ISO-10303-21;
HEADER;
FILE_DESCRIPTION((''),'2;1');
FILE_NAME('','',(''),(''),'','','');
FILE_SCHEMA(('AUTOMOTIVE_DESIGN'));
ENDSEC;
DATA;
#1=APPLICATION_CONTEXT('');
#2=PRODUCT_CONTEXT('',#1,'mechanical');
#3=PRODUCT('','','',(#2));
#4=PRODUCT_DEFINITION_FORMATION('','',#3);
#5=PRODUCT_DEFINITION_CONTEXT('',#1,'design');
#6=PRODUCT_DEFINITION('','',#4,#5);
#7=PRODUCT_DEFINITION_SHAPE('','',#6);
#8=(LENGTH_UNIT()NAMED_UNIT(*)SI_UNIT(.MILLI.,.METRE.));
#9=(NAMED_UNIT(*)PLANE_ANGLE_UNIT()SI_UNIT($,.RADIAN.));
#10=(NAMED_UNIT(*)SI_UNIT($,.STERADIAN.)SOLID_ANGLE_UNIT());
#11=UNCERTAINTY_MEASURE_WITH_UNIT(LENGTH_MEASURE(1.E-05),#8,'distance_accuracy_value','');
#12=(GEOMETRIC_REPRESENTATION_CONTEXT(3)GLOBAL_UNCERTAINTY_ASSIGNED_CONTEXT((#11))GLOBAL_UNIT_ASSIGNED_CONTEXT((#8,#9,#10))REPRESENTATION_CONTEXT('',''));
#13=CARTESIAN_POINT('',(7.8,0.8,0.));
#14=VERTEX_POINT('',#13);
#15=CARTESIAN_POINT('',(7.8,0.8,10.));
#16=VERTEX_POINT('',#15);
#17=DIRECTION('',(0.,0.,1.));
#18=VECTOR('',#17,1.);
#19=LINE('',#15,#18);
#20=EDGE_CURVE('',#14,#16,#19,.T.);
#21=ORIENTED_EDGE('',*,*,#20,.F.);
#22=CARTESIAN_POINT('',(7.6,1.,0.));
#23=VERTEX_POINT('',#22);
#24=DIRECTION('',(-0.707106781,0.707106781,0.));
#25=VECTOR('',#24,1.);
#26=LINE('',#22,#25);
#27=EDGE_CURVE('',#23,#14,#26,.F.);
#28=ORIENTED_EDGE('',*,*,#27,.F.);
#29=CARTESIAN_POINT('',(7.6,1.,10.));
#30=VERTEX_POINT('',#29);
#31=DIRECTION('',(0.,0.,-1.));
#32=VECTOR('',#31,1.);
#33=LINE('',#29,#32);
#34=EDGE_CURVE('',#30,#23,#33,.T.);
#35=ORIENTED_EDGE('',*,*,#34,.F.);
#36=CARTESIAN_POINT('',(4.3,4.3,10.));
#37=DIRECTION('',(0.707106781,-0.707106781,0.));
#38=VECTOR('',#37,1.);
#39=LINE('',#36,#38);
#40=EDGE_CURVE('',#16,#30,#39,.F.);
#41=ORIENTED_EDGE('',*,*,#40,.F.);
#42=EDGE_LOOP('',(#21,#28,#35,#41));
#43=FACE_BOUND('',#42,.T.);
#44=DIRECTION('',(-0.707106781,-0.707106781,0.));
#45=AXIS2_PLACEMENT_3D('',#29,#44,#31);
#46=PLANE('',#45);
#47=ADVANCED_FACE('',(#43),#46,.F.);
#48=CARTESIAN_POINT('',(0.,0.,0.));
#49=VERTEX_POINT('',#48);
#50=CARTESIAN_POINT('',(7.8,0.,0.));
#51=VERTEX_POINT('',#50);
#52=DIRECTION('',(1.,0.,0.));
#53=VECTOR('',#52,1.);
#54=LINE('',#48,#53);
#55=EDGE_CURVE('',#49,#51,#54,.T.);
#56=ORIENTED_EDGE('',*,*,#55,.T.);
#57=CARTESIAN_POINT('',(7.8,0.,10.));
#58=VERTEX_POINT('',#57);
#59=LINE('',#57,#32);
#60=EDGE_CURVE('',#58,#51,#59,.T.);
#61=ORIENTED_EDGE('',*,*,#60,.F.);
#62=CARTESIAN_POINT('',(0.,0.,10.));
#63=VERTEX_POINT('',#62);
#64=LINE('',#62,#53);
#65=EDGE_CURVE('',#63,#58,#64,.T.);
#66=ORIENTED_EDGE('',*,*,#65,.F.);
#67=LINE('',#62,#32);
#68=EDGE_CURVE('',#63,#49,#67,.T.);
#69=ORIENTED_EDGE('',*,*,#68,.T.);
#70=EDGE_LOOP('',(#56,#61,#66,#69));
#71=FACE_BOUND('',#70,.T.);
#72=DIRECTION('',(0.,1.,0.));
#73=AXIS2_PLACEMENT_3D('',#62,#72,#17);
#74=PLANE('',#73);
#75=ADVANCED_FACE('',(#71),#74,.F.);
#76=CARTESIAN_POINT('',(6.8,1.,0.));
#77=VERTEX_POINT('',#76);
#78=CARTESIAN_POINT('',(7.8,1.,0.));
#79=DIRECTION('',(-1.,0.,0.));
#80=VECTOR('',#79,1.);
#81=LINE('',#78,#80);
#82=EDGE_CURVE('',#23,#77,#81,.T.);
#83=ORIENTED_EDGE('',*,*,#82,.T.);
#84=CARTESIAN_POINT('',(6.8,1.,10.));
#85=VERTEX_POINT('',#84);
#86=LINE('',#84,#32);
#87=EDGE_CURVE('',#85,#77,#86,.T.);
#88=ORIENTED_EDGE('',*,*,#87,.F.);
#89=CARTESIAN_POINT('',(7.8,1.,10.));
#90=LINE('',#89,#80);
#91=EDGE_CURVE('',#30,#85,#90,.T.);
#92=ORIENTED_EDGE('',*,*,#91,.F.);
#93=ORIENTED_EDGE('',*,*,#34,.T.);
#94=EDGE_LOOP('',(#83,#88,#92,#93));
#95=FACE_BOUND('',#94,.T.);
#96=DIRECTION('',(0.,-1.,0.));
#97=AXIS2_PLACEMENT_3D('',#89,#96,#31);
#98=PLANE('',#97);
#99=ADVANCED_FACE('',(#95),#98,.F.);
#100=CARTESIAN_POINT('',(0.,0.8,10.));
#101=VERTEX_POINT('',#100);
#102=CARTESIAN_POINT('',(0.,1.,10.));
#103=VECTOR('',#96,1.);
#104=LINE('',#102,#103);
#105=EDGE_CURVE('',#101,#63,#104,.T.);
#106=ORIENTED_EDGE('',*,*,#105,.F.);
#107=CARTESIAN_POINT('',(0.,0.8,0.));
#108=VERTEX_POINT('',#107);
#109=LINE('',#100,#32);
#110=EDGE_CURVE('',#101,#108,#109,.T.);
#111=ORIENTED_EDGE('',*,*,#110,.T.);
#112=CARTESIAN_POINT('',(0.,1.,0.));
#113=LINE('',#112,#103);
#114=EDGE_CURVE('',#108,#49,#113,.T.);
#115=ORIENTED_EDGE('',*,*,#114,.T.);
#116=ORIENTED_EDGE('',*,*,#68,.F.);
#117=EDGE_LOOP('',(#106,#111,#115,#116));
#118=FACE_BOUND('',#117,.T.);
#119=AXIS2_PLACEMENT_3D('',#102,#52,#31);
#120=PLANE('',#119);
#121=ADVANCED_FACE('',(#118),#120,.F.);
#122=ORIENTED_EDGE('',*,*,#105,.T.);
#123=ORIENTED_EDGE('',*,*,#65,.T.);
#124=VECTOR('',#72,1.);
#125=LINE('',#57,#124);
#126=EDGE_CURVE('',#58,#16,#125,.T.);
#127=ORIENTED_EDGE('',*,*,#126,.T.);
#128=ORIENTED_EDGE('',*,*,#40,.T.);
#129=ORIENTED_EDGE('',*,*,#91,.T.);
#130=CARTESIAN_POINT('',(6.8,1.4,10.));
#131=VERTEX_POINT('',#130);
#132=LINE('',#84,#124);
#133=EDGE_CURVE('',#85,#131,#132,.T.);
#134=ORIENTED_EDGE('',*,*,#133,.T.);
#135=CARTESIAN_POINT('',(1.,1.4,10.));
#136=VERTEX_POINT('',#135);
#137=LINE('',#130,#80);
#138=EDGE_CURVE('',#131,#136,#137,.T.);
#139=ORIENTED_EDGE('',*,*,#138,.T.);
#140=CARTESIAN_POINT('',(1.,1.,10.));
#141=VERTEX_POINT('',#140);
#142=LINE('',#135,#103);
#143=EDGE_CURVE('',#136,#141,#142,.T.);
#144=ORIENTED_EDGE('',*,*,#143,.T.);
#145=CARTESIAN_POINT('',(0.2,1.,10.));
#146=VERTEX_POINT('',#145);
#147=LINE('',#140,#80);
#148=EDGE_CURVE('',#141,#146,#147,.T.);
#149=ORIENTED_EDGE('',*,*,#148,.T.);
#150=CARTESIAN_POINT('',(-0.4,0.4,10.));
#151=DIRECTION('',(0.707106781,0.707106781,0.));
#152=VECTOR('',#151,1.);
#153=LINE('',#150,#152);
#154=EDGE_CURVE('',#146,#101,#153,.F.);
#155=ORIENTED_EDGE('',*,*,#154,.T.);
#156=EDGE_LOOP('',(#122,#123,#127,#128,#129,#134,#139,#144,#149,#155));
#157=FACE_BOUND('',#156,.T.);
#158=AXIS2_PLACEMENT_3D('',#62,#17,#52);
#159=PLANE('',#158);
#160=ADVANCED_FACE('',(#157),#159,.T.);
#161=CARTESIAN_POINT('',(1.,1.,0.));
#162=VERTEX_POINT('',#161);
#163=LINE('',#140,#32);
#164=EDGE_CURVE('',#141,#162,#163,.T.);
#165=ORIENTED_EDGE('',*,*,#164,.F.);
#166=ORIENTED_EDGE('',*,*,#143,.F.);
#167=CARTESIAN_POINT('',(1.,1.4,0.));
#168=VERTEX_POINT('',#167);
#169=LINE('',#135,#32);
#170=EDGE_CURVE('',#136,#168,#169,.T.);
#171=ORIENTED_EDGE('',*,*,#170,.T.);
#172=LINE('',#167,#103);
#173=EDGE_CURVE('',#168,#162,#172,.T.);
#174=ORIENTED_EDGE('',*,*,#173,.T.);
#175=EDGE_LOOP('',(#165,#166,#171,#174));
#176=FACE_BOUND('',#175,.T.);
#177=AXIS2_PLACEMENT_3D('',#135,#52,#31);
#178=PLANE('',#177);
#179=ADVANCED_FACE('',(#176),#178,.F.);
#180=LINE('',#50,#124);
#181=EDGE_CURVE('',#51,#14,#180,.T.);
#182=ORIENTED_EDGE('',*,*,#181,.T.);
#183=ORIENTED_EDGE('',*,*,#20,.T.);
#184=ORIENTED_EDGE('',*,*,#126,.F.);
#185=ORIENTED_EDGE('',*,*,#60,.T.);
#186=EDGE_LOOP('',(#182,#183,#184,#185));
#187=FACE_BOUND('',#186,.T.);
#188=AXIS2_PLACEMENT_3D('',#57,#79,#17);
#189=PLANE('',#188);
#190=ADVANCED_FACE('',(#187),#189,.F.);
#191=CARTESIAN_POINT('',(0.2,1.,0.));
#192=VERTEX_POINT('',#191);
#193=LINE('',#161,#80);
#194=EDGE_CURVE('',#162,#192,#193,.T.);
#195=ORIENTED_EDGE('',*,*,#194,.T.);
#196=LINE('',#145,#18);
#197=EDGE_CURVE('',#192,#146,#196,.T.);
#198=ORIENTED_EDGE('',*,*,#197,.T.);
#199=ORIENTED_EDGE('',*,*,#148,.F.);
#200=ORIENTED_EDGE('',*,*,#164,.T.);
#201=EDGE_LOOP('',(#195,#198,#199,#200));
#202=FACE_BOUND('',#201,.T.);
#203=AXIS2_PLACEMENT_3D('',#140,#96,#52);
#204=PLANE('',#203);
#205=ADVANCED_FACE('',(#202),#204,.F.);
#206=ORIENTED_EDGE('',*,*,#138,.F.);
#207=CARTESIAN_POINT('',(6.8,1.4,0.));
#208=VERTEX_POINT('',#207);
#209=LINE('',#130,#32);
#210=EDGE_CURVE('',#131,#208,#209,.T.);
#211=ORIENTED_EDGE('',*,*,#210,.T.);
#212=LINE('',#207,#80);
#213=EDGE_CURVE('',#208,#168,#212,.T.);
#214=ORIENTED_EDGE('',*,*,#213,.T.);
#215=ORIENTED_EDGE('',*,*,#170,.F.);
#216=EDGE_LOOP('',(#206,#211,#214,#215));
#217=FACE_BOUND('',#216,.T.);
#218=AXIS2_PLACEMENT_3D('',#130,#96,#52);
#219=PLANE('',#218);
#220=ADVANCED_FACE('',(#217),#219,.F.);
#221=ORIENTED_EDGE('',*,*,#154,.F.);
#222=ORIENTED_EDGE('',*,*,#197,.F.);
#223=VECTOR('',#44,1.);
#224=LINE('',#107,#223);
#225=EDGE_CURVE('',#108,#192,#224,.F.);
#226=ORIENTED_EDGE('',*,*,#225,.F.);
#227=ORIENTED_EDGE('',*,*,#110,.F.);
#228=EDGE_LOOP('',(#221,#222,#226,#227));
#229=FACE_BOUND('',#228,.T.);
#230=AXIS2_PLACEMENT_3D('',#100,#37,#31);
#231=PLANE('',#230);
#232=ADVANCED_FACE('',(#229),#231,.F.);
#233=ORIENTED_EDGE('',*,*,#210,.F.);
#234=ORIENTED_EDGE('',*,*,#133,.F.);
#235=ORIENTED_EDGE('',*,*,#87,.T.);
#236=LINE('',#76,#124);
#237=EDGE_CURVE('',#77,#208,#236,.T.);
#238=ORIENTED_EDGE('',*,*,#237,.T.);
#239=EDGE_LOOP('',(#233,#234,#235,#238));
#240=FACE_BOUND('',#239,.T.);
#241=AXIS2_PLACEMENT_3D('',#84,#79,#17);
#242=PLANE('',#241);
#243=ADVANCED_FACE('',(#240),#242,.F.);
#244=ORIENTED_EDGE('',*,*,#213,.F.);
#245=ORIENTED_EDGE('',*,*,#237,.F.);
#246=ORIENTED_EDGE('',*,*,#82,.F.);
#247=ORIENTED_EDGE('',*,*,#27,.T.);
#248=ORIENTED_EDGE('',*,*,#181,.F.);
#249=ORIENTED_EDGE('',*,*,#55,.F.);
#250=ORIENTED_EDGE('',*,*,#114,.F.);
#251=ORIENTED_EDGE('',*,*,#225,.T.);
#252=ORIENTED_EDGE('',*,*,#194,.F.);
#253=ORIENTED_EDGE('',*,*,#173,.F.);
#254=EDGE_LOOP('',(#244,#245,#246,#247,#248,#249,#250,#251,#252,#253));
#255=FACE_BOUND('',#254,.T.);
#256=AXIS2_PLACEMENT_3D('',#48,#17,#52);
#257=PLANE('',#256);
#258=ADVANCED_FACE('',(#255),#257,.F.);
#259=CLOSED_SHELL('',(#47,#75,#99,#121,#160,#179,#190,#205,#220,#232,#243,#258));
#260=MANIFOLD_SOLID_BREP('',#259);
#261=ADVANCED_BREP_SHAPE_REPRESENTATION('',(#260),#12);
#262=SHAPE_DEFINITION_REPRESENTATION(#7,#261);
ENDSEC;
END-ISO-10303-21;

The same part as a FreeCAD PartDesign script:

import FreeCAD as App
import Part
import Sketcher

V = App.Vector


def edges_at(feature, points):
    """Names of the edges that pass closest to the given points."""
    edges = feature.Shape.Edges
    near = lambda p: min(range(len(edges)), key=lambda i: edges[i].distToShape(Part.Vertex(*p))[0])
    return sorted({f"Edge{near(p) + 1}" for p in points})


def add_polygon(sketch, points):
    """Adds a closed chain of lines whose ends are joined by coincident constraints."""
    first, n = sketch.GeometryCount, len(points)
    for a, b in zip(points, points[1:] + points[:1]):
        sketch.addGeometry(Part.LineSegment(App.Vector(*a, 0), App.Vector(*b, 0)), False)
    for i in range(n):
        sketch.addConstraint(Sketcher.Constraint("Coincident", first + i, 2, first + (i + 1) % n, 1))

doc = App.newDocument("Part")
params = doc.addObject("Spreadsheet::Sheet", "Params")
for row, (alias, value) in enumerate([
    ("sketch1_width", "1 mm"),
    ("sketch1_width2", "7.8 mm"),
    ("sketch1_height", "0.4 mm"),
    ("pad1_length", "10 mm"),
    ("chamfer_size", "0.2 mm"),
], start=1):
    params.set(f"A{row}", alias)
    params.set(f"B{row}", "=" + value)
    params.setAlias(f"B{row}", alias)

body = doc.addObject("PartDesign::Body", "Body")

sketch1 = body.newObject("Sketcher::SketchObject", "Sketch")
sketch1.AttachmentSupport = (doc.getObject("XY_Plane"), [""])
sketch1.MapMode = "FlatFace"
add_polygon(sketch1, [(0, 0), (7.8, 0), (7.8, 1), (6.8, 1), (6.8, 1.4), (1, 1.4), (1, 1), (0, 1)])
sketch1.addConstraint(Sketcher.Constraint("Horizontal", 0))
sketch1.addConstraint(Sketcher.Constraint("Vertical", 1))
sketch1.addConstraint(Sketcher.Constraint("Horizontal", 2))
sketch1.addConstraint(Sketcher.Constraint("Vertical", 3))
sketch1.addConstraint(Sketcher.Constraint("Horizontal", 4))
sketch1.addConstraint(Sketcher.Constraint("Vertical", 5))
sketch1.addConstraint(Sketcher.Constraint("Horizontal", 6))
sketch1.addConstraint(Sketcher.Constraint("Vertical", 7))
sketch1.addConstraint(Sketcher.Constraint("Coincident", 7, 2, -1, 1))
sketch1.addConstraint(Sketcher.Constraint("Horizontal", 2, 2, 5, 2))
sketch1.addConstraint(Sketcher.Constraint("Equal", 2, 6))
sketch1.addConstraint(Sketcher.Constraint("Equal", 6, 1))
sketch1.addConstraint(Sketcher.Constraint("DistanceX", 2, 2, 2, 1, 1.0))
sketch1.addConstraint(Sketcher.Constraint("DistanceX", 0, 1, 0, 2, 7.8))
sketch1.addConstraint(Sketcher.Constraint("DistanceY", 3, 1, 3, 2, 0.4))
sketch1.setExpression("Constraints[20]", "Params.sketch1_width")
sketch1.setExpression("Constraints[21]", "Params.sketch1_width2")
sketch1.setExpression("Constraints[22]", "Params.sketch1_height")
pad1 = body.newObject("PartDesign::Pad", "Pad")
pad1.Profile = sketch1
pad1.setExpression("Length", "Params.pad1_length")
doc.recompute()

chamfer = body.newObject("PartDesign::Chamfer", "Chamfer")
chamfer.Base = (pad1, edges_at(pad1, [(0, 1, 5), (7.8, 1, 5)]))
chamfer.setExpression("Size", "Params.chamfer_size")

doc.recompute()
